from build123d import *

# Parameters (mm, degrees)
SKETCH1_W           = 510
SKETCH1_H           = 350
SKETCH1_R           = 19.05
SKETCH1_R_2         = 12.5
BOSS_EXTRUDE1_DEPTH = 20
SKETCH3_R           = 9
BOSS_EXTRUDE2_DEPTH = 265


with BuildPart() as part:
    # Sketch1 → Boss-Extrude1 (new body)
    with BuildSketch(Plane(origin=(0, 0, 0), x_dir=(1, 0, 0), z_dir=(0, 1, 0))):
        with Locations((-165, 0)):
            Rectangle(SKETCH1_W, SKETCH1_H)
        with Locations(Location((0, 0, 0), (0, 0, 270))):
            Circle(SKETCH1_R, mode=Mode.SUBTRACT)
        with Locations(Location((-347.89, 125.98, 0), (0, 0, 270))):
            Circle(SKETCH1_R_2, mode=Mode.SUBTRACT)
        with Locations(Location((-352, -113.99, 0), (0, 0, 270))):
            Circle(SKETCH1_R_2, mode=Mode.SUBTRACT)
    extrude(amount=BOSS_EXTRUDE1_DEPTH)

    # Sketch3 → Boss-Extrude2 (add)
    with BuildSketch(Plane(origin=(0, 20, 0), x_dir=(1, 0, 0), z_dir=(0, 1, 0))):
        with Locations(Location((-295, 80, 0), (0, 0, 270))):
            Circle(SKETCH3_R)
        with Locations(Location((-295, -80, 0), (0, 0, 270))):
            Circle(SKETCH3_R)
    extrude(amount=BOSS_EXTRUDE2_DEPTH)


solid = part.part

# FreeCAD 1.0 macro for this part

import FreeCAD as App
import Part
import Sketcher
from FreeCAD import Vector
Q = App.Units.Quantity

doc = App.newDocument("Part")
body = doc.addObject("PartDesign::Body", "Body")

# Sketch on XZ plane
sketch1 = body.newObject("Sketcher::SketchObject", "Sketch")
sketch1.AttachmentSupport = (doc.getObject("XZ_Plane"), [""])
sketch1.MapMode = "FlatFace"
sketch1.addGeometry(Part.LineSegment(Vector(-420, -175, 0), Vector(-420, 175, 0)), False)
sketch1.addGeometry(Part.LineSegment(Vector(-420, 175, 0), Vector(90, 175, 0)), False)
sketch1.addGeometry(Part.LineSegment(Vector(90, 175, 0), Vector(90, -175, 0)), False)
sketch1.addGeometry(Part.LineSegment(Vector(90, -175, 0), Vector(-420, -175, 0)), False)
sketch1.addGeometry(Part.Circle(Vector(-352, 114, 0), Vector(0, 0, 1), 12), False)
sketch1.addGeometry(Part.Circle(Vector(0, 0, 0), Vector(0, 0, 1), 19), False)
sketch1.addGeometry(Part.Circle(Vector(-348, -126, 0), Vector(0, 0, 1), 12), False)
sketch1.addConstraint(Sketcher.Constraint("Coincident", 0, 2, 1, 1))
sketch1.addConstraint(Sketcher.Constraint("Coincident", 1, 2, 2, 1))
sketch1.addConstraint(Sketcher.Constraint("Coincident", 2, 2, 3, 1))
sketch1.addConstraint(Sketcher.Constraint("Coincident", 3, 2, 0, 1))
sketch1.addConstraint(Sketcher.Constraint("Vertical", 0))
sketch1.addConstraint(Sketcher.Constraint("Horizontal", 1))
sketch1.addConstraint(Sketcher.Constraint("Vertical", 2))
sketch1.addConstraint(Sketcher.Constraint("Horizontal", 3))
sketch1.addConstraint(Sketcher.Constraint("Coincident", 5, 3, -1, 1))
sketch1.addConstraint(Sketcher.Constraint("Equal", 4, 6))
sketch1.addConstraint(Sketcher.Constraint("Diameter", 4, Q("25 mm")))
sketch1.addConstraint(Sketcher.Constraint("Diameter", 5, Q("38.1 mm")))
sketch1.addConstraint(Sketcher.Constraint("DistanceX", 1, 1, 1, 2, Q("510 mm")))
sketch1.addConstraint(Sketcher.Constraint("DistanceY", 0, 1, 0, 2, Q("350 mm")))
sketch1.addConstraint(Sketcher.Constraint("DistanceX", 4, 3, -1, 1, Q("352 mm")))
sketch1.addConstraint(Sketcher.Constraint("DistanceX", 0, 2, -1, 1, Q("420 mm")))
sketch1.addConstraint(Sketcher.Constraint("DistanceY", -1, 1, 0, 2, Q("175 mm")))
sketch1.addConstraint(Sketcher.Constraint("DistanceY", -1, 1, 4, 3, Q("113.99 mm")))
sketch1.addConstraint(Sketcher.Constraint("DistanceX", 6, 3, -1, 1, Q("347.89 mm")))
sketch1.addConstraint(Sketcher.Constraint("DistanceY", 6, 3, -1, 1, Q("125.98 mm")))
pad1 = body.newObject("PartDesign::Pad", "Pad")
pad1.Profile = sketch1
pad1.Length = 20
pad1.Reversed = True

# Sketch on XZ plane
sketch2 = body.newObject("Sketcher::SketchObject", "Sketch001")
sketch2.AttachmentSupport = (doc.getObject("XZ_Plane"), [""])
sketch2.MapMode = "FlatFace"
sketch2.AttachmentOffset = App.Placement(Vector(0, 0, -20), App.Rotation())
sketch2.addGeometry(Part.Circle(Vector(-295, -80, 0), Vector(0, 0, 1), 9), False)
sketch2.addGeometry(Part.Circle(Vector(-295, 80, 0), Vector(0, 0, 1), 9), False)
sketch2.addConstraint(Sketcher.Constraint("Equal", 0, 1))
sketch2.addConstraint(Sketcher.Constraint("Symmetric", 0, 3, 1, 3, -1))
sketch2.addConstraint(Sketcher.Constraint("Diameter", 0, Q("18 mm")))
sketch2.addConstraint(Sketcher.Constraint("DistanceX", 0, 3, -1, 1, Q("295 mm")))
sketch2.addConstraint(Sketcher.Constraint("DistanceY", 0, 3, -1, 1, Q("80 mm")))
pad2 = body.newObject("PartDesign::Pad", "Pad001")
pad2.Profile = sketch2
pad2.Length = 265
pad2.Reversed = True

doc.recompute()
